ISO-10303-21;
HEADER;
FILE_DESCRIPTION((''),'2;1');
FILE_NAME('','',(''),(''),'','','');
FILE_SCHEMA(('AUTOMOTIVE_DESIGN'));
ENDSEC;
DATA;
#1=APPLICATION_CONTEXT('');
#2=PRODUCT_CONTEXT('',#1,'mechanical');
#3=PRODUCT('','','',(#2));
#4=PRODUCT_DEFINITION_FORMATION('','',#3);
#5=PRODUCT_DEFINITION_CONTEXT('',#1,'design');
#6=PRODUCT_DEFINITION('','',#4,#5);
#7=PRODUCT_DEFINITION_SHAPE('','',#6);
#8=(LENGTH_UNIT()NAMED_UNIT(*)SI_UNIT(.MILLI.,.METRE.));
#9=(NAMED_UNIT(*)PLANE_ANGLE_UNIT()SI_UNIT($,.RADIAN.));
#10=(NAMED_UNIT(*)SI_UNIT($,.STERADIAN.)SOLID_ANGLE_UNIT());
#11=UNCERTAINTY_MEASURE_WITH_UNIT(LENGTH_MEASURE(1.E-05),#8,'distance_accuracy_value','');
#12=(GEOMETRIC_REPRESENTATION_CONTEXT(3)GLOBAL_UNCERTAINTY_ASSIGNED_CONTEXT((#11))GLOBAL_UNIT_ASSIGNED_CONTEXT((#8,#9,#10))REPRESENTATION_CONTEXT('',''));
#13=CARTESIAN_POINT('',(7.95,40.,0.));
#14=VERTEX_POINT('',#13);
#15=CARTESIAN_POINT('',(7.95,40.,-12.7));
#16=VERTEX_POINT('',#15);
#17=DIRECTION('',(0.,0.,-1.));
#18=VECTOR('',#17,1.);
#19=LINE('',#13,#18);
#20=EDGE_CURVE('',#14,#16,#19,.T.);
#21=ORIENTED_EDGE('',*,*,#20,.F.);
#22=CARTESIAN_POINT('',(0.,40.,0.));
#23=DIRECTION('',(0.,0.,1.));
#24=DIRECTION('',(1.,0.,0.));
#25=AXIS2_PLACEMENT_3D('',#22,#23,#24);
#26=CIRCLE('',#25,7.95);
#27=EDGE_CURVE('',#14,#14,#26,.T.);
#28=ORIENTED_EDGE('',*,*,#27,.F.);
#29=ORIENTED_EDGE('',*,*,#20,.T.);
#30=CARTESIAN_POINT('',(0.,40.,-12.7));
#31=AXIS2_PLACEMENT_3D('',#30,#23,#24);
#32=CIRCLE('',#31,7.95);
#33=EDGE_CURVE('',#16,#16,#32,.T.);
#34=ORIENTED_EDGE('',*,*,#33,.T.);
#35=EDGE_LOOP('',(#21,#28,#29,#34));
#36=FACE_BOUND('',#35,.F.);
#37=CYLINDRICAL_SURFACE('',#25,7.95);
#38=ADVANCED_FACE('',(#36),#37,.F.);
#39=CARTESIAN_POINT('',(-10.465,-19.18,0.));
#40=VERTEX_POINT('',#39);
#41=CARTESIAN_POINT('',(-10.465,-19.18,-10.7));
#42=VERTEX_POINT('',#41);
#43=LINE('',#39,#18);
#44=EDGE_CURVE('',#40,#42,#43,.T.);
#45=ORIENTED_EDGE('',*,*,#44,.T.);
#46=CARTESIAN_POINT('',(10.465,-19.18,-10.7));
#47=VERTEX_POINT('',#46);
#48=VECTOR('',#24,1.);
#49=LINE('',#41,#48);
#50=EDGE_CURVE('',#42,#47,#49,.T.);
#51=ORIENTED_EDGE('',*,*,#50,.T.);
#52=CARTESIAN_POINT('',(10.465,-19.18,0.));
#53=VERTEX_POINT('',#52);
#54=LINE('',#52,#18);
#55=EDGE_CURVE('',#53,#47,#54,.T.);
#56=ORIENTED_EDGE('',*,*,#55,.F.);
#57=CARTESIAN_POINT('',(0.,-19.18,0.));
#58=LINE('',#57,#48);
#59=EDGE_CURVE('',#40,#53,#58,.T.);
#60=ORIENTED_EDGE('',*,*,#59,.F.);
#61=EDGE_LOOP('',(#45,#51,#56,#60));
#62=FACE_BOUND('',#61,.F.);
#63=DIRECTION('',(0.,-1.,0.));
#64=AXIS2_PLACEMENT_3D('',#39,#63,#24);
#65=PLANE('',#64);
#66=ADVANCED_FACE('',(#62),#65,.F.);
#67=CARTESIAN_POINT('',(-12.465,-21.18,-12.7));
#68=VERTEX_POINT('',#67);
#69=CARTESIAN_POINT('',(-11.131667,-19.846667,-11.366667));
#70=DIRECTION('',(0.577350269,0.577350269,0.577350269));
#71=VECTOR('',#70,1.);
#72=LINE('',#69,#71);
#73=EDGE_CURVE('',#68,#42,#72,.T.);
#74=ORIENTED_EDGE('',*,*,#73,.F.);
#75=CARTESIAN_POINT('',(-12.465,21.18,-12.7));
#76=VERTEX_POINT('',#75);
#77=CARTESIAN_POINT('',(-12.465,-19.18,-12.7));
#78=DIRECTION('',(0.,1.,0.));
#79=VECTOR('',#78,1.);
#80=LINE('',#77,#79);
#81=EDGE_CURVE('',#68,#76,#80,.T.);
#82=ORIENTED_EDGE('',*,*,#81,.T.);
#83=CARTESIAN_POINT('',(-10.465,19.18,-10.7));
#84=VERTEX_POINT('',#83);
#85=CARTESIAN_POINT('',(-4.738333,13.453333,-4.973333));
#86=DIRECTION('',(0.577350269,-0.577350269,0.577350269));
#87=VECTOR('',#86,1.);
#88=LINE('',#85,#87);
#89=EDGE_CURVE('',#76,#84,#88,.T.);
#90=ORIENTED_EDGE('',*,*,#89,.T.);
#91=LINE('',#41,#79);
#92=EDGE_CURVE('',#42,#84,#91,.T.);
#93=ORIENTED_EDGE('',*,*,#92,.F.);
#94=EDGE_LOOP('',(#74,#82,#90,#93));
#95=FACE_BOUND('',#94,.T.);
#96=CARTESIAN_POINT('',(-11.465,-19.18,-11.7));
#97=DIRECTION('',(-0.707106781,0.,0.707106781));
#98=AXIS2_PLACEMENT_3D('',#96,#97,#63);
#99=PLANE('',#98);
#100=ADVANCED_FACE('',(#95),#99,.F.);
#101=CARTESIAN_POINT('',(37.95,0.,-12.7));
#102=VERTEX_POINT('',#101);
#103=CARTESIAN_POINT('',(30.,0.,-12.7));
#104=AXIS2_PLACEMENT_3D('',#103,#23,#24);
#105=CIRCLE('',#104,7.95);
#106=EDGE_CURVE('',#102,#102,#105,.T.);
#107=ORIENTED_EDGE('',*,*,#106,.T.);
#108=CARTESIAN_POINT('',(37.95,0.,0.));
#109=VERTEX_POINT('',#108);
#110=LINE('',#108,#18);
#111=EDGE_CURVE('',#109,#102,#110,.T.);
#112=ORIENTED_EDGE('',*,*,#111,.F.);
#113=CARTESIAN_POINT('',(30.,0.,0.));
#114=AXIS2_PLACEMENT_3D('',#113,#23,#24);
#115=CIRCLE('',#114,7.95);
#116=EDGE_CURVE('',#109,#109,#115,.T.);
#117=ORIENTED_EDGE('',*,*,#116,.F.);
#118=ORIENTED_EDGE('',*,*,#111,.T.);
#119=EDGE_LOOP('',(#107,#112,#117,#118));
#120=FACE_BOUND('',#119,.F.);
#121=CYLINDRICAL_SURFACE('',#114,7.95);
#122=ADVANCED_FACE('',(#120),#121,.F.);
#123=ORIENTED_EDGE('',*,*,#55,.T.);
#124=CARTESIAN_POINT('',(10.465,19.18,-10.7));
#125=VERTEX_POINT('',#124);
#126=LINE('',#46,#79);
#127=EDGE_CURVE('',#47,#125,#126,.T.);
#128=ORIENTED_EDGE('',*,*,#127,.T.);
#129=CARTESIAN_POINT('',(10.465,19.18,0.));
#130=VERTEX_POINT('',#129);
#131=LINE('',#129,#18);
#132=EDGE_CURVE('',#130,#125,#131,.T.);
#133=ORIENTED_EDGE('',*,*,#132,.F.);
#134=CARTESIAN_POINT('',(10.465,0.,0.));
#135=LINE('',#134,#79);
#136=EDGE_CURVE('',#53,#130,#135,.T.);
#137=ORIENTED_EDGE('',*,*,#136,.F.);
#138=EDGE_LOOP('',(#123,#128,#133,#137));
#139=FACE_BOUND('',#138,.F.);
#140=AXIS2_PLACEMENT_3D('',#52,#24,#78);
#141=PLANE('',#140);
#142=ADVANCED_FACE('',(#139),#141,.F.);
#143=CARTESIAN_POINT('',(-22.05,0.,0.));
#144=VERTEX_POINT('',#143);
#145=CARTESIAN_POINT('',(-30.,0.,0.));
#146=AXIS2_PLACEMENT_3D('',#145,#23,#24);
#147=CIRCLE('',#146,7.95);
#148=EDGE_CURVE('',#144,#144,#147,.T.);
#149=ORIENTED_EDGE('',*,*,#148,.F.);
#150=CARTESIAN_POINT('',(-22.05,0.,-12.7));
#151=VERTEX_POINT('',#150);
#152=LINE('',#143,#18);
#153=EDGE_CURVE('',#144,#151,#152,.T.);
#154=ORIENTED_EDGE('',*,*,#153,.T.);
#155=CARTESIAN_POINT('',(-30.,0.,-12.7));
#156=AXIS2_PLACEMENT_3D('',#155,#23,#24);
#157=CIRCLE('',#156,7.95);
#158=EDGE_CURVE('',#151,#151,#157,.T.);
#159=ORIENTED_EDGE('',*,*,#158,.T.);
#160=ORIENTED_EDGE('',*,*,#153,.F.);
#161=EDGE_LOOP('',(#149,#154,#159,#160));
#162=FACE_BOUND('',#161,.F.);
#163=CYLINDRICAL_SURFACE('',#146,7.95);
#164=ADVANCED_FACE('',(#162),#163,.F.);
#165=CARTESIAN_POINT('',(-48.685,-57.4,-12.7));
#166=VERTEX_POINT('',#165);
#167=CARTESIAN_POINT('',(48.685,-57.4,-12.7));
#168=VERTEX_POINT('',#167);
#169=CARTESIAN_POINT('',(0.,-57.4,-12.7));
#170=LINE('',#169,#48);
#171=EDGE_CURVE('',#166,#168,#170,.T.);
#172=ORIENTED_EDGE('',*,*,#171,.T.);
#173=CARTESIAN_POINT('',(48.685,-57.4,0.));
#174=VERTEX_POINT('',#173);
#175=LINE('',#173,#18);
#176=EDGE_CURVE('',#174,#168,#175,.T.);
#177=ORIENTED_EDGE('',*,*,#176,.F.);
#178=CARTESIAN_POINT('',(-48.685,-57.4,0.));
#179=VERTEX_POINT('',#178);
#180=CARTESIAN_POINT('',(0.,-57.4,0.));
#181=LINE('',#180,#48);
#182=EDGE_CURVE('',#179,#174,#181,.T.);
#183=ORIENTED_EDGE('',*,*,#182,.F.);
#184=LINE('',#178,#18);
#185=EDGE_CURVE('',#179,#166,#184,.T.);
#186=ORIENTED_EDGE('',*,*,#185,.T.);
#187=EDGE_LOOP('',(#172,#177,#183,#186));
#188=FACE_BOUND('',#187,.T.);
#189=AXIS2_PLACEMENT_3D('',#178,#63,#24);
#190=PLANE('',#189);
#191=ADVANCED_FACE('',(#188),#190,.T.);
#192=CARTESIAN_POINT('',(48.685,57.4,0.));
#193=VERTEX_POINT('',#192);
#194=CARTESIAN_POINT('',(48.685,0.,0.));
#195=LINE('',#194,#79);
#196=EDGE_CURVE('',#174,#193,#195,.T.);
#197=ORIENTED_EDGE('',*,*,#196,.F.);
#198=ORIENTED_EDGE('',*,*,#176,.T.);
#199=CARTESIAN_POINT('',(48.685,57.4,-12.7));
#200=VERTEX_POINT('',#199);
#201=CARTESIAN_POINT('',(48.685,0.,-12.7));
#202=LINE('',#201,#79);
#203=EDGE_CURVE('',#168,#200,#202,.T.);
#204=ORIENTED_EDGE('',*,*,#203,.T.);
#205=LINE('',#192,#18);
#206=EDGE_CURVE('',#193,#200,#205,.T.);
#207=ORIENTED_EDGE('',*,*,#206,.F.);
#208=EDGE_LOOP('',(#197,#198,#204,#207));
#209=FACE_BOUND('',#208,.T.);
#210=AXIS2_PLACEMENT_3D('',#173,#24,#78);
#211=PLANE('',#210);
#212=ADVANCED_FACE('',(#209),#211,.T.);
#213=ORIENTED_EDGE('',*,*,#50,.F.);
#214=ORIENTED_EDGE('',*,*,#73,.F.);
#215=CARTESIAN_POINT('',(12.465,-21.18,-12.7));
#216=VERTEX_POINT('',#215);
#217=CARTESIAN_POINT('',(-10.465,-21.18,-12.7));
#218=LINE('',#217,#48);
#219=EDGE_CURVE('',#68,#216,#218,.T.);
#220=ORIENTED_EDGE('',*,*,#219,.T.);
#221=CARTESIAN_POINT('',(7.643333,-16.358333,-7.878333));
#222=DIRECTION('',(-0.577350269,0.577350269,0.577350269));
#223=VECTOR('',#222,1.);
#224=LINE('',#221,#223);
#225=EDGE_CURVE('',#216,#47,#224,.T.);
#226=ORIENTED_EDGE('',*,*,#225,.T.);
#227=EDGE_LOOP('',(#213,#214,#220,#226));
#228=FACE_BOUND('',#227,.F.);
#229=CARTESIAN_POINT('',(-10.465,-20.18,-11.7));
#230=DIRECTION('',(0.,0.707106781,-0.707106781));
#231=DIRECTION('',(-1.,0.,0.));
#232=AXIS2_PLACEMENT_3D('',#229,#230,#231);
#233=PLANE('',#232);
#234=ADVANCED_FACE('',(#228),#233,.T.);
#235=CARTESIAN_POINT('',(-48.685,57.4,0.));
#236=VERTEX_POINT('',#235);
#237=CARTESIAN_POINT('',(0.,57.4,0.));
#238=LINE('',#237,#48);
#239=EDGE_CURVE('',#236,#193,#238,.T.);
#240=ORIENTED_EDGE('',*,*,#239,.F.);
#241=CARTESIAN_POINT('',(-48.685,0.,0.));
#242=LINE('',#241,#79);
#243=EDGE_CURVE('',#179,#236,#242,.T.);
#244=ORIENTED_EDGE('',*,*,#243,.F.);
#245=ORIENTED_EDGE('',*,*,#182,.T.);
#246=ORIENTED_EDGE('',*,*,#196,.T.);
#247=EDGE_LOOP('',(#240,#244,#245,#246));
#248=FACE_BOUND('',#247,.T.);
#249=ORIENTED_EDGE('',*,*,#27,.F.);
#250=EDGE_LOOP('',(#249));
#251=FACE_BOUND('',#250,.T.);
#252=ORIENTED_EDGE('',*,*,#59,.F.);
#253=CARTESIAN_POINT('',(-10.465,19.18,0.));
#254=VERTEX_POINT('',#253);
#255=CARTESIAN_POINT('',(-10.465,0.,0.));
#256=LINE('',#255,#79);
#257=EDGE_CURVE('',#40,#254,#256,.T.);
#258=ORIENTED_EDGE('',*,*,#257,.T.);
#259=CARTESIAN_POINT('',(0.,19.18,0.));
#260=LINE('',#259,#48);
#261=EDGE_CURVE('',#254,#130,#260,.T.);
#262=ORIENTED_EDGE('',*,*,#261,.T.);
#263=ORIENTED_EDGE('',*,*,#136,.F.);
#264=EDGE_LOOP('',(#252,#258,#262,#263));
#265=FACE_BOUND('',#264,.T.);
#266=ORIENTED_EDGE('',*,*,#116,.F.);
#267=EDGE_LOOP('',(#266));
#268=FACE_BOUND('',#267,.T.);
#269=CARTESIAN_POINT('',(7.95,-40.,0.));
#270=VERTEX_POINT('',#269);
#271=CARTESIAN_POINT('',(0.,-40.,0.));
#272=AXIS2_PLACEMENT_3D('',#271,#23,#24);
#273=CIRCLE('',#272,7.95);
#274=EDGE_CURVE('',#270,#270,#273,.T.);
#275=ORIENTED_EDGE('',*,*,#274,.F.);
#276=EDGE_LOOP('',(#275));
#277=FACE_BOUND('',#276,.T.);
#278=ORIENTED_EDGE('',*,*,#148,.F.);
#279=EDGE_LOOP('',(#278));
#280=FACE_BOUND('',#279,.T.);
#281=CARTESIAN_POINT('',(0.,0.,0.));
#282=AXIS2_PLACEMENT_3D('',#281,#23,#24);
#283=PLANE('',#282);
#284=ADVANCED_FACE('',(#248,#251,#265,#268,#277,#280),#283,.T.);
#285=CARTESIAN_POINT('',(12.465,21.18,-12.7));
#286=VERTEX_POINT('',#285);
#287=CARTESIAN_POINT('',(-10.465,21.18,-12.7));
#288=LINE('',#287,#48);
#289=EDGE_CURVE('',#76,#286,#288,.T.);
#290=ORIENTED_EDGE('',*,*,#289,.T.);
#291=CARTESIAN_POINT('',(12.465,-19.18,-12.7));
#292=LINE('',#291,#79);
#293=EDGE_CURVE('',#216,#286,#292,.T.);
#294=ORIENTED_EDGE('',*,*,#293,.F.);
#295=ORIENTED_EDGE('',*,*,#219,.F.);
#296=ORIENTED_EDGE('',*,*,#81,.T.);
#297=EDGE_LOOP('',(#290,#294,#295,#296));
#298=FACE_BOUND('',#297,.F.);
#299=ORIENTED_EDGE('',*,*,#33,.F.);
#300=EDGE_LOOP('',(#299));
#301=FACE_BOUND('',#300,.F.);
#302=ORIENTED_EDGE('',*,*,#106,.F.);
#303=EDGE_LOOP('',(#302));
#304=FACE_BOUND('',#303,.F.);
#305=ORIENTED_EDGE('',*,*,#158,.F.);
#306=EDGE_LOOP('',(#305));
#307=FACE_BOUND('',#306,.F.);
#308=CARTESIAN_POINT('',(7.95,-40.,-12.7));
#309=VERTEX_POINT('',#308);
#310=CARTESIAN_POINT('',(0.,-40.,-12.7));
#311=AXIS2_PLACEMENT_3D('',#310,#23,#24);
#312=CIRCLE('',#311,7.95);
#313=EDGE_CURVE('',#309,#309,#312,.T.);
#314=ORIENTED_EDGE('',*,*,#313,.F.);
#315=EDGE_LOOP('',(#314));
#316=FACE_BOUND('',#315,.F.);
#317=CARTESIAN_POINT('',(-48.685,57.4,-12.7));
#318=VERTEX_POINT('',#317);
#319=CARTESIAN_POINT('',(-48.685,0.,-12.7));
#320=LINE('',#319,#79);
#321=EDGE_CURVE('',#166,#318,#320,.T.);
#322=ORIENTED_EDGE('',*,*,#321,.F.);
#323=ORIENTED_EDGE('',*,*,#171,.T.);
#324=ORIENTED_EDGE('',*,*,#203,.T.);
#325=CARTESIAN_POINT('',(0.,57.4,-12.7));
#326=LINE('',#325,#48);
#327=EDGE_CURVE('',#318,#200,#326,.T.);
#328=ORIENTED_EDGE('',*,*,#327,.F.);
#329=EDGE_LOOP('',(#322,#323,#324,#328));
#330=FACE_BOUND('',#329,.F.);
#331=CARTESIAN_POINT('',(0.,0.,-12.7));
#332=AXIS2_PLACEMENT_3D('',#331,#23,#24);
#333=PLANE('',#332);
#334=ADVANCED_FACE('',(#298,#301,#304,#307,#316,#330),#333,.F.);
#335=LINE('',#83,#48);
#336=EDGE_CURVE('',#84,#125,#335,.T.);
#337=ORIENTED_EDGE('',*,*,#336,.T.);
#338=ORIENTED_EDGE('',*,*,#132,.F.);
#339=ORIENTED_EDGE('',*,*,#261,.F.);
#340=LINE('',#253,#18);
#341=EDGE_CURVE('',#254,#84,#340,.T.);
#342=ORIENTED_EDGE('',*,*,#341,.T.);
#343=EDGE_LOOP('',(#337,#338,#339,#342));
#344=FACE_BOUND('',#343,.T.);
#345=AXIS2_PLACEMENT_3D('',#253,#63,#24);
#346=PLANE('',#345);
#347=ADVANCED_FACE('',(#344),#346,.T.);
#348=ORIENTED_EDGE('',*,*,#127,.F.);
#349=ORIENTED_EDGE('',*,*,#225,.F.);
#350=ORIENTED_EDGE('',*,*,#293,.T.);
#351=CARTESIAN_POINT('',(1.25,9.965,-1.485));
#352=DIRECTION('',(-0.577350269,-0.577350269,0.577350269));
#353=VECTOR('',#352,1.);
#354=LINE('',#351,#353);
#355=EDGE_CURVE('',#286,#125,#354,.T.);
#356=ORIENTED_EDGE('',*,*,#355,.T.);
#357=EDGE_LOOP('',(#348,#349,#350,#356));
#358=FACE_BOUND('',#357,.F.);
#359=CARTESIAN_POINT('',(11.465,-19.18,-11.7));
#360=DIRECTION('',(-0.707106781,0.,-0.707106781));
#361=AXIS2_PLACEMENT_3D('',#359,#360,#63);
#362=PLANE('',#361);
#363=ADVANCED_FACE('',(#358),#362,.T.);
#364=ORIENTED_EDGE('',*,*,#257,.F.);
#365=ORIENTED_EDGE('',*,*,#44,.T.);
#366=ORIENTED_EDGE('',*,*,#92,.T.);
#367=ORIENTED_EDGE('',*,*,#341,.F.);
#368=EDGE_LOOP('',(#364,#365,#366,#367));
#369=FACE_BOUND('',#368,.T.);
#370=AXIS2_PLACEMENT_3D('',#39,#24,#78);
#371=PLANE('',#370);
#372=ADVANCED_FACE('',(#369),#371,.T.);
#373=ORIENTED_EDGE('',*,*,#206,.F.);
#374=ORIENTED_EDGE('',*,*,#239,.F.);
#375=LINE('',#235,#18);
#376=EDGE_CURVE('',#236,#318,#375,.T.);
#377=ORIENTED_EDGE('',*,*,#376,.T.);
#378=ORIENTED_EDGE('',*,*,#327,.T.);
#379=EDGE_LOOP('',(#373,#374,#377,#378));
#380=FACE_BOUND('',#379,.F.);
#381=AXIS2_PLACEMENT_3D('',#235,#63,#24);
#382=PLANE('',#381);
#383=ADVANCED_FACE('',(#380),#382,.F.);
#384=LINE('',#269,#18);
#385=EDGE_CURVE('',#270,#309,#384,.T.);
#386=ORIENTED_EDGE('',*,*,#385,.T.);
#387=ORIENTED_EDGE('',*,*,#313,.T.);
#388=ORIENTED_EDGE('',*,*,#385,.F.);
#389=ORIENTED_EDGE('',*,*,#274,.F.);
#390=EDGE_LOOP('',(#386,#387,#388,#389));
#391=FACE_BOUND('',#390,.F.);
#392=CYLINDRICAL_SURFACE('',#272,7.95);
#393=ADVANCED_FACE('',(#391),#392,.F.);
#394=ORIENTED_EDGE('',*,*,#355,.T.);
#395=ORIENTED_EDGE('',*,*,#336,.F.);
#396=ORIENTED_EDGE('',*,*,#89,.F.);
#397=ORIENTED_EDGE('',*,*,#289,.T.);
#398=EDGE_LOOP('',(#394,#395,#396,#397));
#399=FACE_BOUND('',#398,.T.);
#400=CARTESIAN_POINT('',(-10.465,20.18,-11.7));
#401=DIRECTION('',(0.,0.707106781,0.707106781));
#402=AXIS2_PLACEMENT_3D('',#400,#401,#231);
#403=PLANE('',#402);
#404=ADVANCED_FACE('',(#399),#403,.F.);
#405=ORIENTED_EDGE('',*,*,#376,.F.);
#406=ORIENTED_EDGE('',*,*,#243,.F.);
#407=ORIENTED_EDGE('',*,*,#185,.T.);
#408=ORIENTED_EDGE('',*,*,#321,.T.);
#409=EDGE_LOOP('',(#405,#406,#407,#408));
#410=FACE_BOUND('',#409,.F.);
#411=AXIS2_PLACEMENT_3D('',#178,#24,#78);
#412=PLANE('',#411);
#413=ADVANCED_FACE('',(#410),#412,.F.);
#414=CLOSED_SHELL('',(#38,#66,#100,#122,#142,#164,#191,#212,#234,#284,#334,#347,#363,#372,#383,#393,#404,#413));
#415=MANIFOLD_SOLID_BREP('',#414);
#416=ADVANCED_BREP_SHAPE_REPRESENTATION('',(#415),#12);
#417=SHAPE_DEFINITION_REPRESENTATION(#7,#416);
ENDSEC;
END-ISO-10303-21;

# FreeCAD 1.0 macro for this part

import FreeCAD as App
import Part
import Sketcher

V = App.Vector
Q = App.Units.Quantity


def edges_at(feature, points):
    """Names of the edges that pass closest to the given points."""
    edges = feature.Shape.Edges
    near = lambda p: min(range(len(edges)), key=lambda i: edges[i].distToShape(Part.Vertex(*p))[0])
    return sorted({f"Edge{near(p) + 1}" for p in points})


def add_polygon(sketch, points):
    """Adds a closed chain of lines whose ends are joined by coincident constraints."""
    first, n = sketch.GeometryCount, len(points)
    for a, b in zip(points, points[1:] + points[:1]):
        sketch.addGeometry(Part.LineSegment(App.Vector(*a, 0), App.Vector(*b, 0)), False)
    for i in range(n):
        sketch.addConstraint(Sketcher.Constraint("Coincident", first + i, 2, first + (i + 1) % n, 1))

doc = App.newDocument("Part")
body = doc.addObject("PartDesign::Body", "Body")

# Sketch on XY plane
sketch1 = body.newObject("Sketcher::SketchObject", "Sketch")
sketch1.AttachmentSupport = (doc.getObject("XY_Plane"), [""])
sketch1.MapMode = "FlatFace"
add_polygon(sketch1, [(-49, 57), (-49, -57), (49, -57), (49, 57)])  # lines 0-3
sketch1.addConstraint([
    Sketcher.Constraint("Vertical", 0),
    Sketcher.Constraint("Horizontal", 1),
    Sketcher.Constraint("Vertical", 2),
    Sketcher.Constraint("Horizontal", 3),
    Sketcher.Constraint("Symmetric", 0, 2, 2, 2, -1, 1),
    Sketcher.Constraint("DistanceY", 0, 2, 0, 1, Q("114.8 mm")),
    Sketcher.Constraint("DistanceX", 1, 1, 1, 2, Q("97.37 mm")),
])
pad1 = body.newObject("PartDesign::Pad", "Pad")
pad1.Profile = sketch1
pad1.Length = 12.7
pad1.Reversed = True

# Sketch on XY plane
sketch2 = body.newObject("Sketcher::SketchObject", "Sketch001")
sketch2.AttachmentSupport = (doc.getObject("XY_Plane"), [""])
sketch2.MapMode = "FlatFace"
add_polygon(sketch2, [(-10, 19), (-10, -19), (10, -19), (10, 19)])  # lines 0-3
sketch2.addConstraint([
    Sketcher.Constraint("Vertical", 0),
    Sketcher.Constraint("Horizontal", 1),
    Sketcher.Constraint("Vertical", 2),
    Sketcher.Constraint("Horizontal", 3),
    Sketcher.Constraint("Symmetric", 0, 2, 2, 2, -1, 1),
    Sketcher.Constraint("DistanceX", 1, 1, 1, 2, Q("20.93 mm")),
    Sketcher.Constraint("DistanceY", 0, 2, 0, 1, Q("38.36 mm")),
])
pocket1 = body.newObject("PartDesign::Pocket", "Pocket")
pocket1.Profile = sketch2
pocket1.Type = "ThroughAll"
doc.recompute()

chamfer = body.newObject("PartDesign::Chamfer", "Chamfer")
chamfer.Base = (pocket1, edges_at(pocket1, [
    (0, 19.18, -12.7),
    (10.465, 0, -12.7),
    (-10.465, 0, -12.7),
    (0, -19.18, -12.7),
]))
chamfer.Size = 2

# Sketch on XY plane
sketch3 = body.newObject("Sketcher::SketchObject", "Sketch002")
sketch3.AttachmentSupport = (doc.getObject("XY_Plane"), [""])
sketch3.MapMode = "FlatFace"
sketch3.addGeometry([
    Part.Circle(V(0, 40, 0), V(0, 0, 1), 8),
    Part.Circle(V(30, 0, 0), V(0, 0, 1), 8),
    Part.Circle(V(-30, 0, 0), V(0, 0, 1), 8),
    Part.Circle(V(0, -40, 0), V(0, 0, 1), 8),
], False)
sketch3.addConstraint([
    Sketcher.Constraint("Equal", 0, 1),
    Sketcher.Constraint("Equal", 1, 2),
    Sketcher.Constraint("Equal", 2, 3),
    Sketcher.Constraint("Symmetric", 1, 3, 2, 3, -1, 1),
    Sketcher.Constraint("Symmetric", 0, 3, 3, 3, -1, 1),
    Sketcher.Constraint("PointOnObject", 0, 3, -2),
    Sketcher.Constraint("PointOnObject", 1, 3, -1),
    Sketcher.Constraint("Diameter", 0, Q("15.9 mm")),
    Sketcher.Constraint("DistanceY", -1, 1, 0, 3, Q("40 mm")),
    Sketcher.Constraint("DistanceX", -1, 1, 1, 3, Q("30 mm")),
])
pocket2 = body.newObject("PartDesign::Pocket", "Pocket001")
pocket2.Profile = sketch3
pocket2.Type = "ThroughAll"

doc.recompute()
